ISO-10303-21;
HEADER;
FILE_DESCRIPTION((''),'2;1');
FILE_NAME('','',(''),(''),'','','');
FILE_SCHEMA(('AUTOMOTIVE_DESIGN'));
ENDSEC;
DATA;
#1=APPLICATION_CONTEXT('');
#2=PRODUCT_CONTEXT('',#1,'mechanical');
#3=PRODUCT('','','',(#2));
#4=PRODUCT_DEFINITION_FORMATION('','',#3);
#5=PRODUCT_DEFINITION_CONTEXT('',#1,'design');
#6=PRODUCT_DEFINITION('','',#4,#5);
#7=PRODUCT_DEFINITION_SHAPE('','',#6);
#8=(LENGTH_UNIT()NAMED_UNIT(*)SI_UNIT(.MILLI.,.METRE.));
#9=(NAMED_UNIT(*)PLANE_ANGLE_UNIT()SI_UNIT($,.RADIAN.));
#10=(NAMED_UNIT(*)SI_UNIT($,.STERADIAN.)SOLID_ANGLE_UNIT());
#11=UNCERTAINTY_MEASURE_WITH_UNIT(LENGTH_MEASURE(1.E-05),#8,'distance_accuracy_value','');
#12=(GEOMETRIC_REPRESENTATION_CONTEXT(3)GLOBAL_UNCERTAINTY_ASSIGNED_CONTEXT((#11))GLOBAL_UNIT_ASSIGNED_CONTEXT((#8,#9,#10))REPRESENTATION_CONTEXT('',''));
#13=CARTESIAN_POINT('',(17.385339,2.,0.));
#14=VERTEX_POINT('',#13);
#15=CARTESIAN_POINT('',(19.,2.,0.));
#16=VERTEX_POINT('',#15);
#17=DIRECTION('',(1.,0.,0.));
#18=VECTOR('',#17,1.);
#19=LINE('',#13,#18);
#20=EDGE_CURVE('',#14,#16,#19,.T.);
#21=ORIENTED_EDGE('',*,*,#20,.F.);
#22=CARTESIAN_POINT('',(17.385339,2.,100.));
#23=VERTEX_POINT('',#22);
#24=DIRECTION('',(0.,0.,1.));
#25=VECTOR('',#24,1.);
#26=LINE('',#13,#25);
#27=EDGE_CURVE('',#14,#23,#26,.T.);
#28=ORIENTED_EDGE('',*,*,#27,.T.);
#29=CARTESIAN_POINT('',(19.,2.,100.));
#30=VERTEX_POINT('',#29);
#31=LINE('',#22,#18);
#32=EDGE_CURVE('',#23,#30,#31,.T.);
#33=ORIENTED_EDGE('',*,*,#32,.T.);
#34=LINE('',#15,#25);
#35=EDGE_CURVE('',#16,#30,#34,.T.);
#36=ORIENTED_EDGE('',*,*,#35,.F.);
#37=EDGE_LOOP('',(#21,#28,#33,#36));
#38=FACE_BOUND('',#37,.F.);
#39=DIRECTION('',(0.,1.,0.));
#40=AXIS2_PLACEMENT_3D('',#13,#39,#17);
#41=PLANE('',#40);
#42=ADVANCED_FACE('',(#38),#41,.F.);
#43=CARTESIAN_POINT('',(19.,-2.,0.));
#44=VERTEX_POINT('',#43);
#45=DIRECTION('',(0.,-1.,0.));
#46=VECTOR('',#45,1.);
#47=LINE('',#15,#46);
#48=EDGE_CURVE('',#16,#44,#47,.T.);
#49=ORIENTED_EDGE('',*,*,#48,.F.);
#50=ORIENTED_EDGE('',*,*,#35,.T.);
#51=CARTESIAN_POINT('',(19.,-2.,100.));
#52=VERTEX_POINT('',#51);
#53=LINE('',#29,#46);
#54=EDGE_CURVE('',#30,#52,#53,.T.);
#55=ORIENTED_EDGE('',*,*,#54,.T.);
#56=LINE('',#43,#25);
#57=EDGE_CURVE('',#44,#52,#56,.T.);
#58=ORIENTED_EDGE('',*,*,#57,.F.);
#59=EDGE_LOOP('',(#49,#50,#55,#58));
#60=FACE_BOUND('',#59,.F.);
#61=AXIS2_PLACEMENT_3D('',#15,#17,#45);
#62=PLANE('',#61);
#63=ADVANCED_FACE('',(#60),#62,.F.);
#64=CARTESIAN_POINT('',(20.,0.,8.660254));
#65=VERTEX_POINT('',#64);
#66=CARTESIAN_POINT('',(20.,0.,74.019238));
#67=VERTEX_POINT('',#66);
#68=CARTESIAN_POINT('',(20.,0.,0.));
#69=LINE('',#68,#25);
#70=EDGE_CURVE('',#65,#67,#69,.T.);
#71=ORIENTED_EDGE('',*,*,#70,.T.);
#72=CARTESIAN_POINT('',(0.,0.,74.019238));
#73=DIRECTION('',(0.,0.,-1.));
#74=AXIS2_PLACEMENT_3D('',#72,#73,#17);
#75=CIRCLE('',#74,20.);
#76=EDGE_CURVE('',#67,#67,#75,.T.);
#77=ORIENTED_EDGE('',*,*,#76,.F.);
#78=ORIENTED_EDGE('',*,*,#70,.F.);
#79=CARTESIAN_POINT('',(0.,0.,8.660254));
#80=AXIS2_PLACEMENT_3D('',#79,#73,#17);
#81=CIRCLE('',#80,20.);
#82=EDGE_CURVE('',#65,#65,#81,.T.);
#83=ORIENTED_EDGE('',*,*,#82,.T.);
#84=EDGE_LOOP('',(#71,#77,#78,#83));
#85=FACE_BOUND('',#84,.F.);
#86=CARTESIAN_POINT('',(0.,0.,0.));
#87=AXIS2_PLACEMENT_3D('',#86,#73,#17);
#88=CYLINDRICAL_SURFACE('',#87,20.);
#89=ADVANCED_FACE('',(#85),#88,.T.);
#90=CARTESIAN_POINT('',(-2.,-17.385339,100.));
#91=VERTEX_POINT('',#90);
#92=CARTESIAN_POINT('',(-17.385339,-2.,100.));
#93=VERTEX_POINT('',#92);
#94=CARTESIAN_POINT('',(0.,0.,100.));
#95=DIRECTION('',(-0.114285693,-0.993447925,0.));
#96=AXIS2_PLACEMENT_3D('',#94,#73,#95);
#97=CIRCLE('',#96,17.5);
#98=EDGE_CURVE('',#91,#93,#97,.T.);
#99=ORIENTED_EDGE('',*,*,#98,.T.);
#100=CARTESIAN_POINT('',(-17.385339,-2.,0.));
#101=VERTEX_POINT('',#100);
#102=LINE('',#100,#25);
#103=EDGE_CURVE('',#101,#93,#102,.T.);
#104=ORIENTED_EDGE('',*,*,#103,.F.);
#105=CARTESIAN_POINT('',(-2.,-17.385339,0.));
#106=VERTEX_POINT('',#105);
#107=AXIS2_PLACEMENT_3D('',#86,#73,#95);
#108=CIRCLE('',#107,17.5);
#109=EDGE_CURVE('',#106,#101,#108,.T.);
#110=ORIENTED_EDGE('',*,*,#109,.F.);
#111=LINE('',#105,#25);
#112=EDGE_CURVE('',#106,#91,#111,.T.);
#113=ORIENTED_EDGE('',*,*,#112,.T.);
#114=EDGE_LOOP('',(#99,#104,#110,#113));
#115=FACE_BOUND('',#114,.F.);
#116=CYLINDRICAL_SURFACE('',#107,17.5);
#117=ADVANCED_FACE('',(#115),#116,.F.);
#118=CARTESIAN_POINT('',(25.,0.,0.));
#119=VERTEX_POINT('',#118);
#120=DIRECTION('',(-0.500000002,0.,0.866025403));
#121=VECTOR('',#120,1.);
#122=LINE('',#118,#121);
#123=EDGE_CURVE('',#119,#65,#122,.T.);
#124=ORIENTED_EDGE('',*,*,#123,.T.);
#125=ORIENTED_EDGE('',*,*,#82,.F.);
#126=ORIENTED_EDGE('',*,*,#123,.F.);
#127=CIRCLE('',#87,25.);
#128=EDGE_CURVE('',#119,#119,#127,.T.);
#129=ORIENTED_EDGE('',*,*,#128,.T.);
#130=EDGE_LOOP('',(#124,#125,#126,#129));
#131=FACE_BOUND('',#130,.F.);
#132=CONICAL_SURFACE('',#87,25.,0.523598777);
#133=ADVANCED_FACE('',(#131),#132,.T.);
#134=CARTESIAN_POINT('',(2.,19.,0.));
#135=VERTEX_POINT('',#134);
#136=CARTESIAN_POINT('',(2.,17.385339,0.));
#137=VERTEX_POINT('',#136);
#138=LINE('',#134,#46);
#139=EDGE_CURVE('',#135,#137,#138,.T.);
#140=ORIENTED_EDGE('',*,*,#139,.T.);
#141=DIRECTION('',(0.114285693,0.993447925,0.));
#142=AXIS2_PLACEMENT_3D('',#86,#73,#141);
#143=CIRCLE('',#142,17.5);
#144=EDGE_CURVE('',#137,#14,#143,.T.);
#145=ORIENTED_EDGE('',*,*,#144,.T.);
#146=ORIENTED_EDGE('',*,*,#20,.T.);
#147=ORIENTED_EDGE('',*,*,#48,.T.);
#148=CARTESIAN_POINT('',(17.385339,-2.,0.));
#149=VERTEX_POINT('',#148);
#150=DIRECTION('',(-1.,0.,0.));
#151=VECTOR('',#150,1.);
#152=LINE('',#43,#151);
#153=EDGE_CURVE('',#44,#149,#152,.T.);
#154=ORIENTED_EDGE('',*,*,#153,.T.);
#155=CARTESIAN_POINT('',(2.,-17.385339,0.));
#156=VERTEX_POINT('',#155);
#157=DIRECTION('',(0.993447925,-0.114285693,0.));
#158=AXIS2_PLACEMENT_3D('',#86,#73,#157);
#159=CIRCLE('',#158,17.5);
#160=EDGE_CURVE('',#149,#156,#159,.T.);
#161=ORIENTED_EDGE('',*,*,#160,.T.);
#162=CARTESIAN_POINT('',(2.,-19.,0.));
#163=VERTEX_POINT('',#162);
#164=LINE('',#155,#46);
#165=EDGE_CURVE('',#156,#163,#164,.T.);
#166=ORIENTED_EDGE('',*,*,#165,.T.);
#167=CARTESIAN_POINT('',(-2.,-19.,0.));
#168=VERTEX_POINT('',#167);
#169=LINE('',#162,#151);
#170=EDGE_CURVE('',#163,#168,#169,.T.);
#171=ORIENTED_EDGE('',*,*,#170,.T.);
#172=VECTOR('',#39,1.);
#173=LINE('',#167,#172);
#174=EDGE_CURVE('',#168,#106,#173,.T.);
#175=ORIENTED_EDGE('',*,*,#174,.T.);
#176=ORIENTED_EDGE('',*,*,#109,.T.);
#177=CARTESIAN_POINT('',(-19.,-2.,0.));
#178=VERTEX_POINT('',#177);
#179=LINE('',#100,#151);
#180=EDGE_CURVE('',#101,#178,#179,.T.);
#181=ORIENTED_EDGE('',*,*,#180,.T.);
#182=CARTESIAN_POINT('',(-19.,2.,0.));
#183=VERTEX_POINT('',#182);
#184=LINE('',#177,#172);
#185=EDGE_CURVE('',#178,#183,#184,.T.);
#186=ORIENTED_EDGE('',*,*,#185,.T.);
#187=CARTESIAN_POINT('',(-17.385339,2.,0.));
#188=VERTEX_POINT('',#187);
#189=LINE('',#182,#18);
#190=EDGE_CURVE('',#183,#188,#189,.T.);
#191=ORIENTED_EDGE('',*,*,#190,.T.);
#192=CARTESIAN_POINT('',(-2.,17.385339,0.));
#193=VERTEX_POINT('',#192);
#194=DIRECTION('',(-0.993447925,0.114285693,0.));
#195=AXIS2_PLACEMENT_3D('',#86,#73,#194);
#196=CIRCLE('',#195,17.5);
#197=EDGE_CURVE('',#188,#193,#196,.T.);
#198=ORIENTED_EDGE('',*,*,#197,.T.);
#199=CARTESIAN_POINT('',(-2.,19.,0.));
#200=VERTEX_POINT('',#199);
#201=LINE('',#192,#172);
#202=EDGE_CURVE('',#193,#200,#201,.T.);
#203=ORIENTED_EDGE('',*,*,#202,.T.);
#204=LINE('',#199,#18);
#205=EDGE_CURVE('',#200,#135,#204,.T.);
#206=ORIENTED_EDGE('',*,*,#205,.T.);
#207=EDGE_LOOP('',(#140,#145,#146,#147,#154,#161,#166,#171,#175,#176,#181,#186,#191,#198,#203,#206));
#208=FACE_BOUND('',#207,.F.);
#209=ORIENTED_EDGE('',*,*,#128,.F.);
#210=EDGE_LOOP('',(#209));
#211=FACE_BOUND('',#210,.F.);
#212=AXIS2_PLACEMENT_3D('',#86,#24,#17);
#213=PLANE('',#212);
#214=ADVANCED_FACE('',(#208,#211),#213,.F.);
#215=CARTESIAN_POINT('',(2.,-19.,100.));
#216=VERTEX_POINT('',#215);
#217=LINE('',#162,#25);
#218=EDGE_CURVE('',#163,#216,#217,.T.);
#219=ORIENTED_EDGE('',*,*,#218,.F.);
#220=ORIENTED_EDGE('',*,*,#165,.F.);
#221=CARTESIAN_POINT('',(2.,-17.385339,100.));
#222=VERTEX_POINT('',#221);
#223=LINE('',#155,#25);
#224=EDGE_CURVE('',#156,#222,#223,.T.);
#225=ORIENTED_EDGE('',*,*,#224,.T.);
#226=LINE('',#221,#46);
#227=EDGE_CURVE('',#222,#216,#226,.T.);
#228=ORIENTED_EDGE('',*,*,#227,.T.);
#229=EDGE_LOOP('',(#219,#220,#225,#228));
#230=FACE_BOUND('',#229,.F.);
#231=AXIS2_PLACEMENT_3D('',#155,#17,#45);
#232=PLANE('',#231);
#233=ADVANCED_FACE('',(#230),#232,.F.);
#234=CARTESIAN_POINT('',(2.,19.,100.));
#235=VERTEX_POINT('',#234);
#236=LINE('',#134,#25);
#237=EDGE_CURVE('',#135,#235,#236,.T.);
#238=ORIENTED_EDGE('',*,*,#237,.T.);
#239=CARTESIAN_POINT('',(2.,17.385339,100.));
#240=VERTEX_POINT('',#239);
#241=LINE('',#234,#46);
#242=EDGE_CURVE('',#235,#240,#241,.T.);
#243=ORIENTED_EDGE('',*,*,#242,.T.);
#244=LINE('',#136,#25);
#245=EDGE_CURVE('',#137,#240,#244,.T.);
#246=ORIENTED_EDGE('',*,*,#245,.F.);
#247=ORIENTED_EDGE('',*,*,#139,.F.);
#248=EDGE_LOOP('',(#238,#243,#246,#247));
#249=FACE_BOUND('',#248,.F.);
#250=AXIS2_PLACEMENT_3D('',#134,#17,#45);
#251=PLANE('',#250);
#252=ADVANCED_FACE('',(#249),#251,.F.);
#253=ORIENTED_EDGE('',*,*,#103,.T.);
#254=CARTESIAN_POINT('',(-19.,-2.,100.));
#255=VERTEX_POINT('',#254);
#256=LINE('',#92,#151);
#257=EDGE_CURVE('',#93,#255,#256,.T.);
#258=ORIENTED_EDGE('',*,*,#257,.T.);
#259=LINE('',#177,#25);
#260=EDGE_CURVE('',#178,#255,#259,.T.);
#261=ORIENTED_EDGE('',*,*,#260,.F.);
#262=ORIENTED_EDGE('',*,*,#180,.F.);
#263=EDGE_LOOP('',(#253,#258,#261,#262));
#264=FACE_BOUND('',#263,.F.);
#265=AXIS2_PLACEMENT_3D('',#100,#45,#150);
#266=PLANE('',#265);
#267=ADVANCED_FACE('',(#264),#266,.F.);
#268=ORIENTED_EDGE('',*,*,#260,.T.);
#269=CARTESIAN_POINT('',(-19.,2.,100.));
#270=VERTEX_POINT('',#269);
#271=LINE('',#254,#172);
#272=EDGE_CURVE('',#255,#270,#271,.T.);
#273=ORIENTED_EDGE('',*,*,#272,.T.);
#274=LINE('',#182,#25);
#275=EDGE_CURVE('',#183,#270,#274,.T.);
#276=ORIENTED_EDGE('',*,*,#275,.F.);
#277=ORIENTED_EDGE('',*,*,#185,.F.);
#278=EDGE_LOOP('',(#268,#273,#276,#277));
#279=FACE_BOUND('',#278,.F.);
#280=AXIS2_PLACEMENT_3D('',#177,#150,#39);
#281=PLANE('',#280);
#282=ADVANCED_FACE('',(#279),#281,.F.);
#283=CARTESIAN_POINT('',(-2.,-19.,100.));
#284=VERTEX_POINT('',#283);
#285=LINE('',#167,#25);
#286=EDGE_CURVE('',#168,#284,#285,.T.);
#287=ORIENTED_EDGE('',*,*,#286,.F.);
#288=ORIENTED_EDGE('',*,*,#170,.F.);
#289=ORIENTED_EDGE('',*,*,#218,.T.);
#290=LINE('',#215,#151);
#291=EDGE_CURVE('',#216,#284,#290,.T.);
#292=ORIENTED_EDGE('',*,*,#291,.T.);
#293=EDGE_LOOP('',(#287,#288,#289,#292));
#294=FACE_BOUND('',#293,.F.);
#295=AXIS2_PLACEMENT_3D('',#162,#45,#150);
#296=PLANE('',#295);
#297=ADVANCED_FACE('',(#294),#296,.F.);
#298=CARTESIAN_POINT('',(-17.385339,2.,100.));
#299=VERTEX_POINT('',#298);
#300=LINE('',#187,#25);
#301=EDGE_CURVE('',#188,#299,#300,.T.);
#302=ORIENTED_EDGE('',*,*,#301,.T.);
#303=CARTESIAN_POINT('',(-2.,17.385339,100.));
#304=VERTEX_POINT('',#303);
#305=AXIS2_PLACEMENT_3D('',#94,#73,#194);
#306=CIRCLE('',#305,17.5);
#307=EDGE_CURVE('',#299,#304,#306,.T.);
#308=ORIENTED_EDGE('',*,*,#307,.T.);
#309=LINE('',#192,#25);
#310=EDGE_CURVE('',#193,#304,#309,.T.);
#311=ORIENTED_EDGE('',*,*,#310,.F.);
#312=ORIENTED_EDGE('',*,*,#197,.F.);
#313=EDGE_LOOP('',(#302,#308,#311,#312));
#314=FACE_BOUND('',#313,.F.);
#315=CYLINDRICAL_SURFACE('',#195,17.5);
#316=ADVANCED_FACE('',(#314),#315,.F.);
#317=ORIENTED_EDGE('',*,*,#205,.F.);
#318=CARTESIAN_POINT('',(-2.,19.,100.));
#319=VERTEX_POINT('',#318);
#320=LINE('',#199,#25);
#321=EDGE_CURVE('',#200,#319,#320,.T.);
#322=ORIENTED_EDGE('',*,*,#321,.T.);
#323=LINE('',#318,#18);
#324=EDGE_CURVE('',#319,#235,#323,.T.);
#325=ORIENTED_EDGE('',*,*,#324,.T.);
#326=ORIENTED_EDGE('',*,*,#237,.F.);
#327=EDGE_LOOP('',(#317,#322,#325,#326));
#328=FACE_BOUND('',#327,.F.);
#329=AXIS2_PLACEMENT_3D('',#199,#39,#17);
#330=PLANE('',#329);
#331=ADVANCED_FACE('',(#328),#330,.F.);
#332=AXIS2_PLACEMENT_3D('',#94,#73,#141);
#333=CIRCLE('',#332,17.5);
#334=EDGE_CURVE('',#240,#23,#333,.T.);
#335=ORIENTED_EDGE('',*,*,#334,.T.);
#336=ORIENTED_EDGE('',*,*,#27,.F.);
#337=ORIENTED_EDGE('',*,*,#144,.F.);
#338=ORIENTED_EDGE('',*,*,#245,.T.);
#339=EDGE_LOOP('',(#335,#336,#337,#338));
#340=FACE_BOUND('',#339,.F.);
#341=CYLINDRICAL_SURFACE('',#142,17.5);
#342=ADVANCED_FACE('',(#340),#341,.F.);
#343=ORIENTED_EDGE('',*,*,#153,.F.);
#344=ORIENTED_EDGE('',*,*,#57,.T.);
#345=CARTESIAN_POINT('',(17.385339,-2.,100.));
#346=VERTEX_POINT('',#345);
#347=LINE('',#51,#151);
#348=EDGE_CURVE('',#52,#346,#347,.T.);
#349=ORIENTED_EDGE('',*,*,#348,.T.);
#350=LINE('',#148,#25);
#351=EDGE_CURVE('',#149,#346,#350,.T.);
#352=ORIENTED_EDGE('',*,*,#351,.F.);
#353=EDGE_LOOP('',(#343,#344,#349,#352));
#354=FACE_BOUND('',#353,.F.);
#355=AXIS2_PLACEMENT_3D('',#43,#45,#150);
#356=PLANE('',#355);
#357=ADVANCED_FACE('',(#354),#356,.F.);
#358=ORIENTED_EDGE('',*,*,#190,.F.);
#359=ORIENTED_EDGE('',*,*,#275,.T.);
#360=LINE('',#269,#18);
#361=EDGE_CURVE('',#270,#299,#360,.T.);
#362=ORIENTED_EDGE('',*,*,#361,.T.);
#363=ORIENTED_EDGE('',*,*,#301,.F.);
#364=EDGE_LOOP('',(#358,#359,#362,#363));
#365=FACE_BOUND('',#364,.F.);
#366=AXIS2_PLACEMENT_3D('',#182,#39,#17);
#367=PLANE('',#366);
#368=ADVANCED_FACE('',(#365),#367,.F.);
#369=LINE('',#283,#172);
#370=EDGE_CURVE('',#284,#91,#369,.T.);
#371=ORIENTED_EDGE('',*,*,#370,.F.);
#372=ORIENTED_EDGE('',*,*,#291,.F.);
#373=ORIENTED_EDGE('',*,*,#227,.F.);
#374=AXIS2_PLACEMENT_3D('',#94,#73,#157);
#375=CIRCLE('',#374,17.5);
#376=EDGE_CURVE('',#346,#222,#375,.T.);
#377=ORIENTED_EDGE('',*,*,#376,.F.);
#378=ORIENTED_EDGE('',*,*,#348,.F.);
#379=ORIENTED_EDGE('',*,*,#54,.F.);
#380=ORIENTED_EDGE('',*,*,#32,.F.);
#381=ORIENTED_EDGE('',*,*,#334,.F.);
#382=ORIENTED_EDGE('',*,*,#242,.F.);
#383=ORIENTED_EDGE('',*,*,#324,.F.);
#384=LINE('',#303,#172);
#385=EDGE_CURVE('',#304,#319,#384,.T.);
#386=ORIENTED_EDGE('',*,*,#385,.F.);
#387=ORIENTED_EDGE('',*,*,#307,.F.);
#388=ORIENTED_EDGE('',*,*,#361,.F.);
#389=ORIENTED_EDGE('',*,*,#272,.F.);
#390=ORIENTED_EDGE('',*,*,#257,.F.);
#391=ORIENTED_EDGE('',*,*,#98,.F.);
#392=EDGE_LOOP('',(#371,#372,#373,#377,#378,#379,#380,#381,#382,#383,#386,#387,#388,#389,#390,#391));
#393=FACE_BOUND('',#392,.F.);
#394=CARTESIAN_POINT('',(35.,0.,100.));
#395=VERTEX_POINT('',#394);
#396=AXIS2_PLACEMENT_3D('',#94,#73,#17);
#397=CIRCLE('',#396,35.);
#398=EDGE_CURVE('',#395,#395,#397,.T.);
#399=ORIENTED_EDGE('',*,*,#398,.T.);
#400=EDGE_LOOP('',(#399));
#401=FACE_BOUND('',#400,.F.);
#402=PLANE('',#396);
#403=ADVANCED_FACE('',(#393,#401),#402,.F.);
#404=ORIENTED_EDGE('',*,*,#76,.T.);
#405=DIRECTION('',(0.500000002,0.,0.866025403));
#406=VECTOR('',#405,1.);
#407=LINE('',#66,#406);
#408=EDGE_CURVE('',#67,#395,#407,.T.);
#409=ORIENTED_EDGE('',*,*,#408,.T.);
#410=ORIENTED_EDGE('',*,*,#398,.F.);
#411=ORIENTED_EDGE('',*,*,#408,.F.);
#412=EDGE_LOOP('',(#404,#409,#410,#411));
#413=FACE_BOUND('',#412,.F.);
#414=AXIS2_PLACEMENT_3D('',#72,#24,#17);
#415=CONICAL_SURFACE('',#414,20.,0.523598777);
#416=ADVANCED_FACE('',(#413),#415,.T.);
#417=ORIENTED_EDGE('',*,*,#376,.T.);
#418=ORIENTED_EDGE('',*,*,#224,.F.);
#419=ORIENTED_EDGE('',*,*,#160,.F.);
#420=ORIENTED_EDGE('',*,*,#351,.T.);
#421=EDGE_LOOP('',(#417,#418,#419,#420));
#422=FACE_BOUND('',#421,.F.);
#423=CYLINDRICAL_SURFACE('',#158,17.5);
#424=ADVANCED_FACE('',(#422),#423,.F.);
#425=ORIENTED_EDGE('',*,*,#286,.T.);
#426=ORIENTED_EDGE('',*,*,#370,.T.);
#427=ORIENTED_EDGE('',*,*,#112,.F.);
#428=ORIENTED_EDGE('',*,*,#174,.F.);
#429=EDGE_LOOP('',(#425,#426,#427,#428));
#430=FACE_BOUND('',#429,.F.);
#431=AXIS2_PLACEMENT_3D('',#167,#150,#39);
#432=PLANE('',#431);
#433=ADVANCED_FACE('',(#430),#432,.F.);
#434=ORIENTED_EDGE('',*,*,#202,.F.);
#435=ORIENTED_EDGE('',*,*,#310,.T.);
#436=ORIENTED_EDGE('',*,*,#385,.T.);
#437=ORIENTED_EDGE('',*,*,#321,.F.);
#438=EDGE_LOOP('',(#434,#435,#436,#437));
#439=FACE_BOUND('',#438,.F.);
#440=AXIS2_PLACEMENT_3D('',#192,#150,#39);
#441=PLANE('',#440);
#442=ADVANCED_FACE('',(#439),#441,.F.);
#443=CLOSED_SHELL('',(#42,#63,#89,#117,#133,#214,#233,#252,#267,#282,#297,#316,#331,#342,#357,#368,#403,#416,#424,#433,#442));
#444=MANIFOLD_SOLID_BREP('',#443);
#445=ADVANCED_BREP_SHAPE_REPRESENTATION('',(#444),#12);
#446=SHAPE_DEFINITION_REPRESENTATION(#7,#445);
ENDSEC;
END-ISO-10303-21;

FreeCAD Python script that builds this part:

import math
import FreeCAD as App
import Part
import Sketcher
Q = App.Units.Quantity


def add_polygon(sketch, points):
    """Adds a closed chain of lines whose ends are joined by coincident constraints."""
    first, n = sketch.GeometryCount, len(points)
    for a, b in zip(points, points[1:] + points[:1]):
        sketch.addGeometry(Part.LineSegment(App.Vector(*a, 0), App.Vector(*b, 0)), False)
    for i in range(n):
        sketch.addConstraint(Sketcher.Constraint("Coincident", first + i, 2, first + (i + 1) % n, 1))

doc = App.newDocument("Part")
body = doc.addObject("PartDesign::Body", "Body")

# Sketch on XY plane
sketch1 = body.newObject("Sketcher::SketchObject", "Sketch")
sketch1.AttachmentSupport = (doc.getObject("XY_Plane"), [""])
sketch1.MapMode = "FlatFace"
sketch1.addGeometry([
    Part.Circle(App.Vector(0, 0, 0), App.Vector(0, 0, 1), 20),  # 0
    Part.LineSegment(App.Vector(2, 19, 0), App.Vector(2, 17.385339, 0)),  # 1
    Part.ArcOfCircle(Part.Circle(App.Vector(0, 0, 0), App.Vector(0, 0, 1), 17.5), math.radians(6.562427), math.radians(83.437573)),  # 2
    Part.LineSegment(App.Vector(17.385339, 2, 0), App.Vector(19, 2, 0)),  # 3
    Part.LineSegment(App.Vector(19, 2, 0), App.Vector(19, -2, 0)),  # 4
    Part.LineSegment(App.Vector(19, -2, 0), App.Vector(17.385339, -2, 0)),  # 5
    Part.ArcOfCircle(Part.Circle(App.Vector(0, 0, 0), App.Vector(0, 0, 1), 17.5), math.radians(-83.437573), math.radians(-6.562427)),  # 6
    Part.LineSegment(App.Vector(2, -17.385339, 0), App.Vector(2, -19, 0)),  # 7
    Part.LineSegment(App.Vector(2, -19, 0), App.Vector(-2, -19, 0)),  # 8
    Part.LineSegment(App.Vector(-2, -19, 0), App.Vector(-2, -17.385339, 0)),  # 9
    Part.ArcOfCircle(Part.Circle(App.Vector(0, 0, 0), App.Vector(0, 0, 1), 17.5), math.radians(-173.437573), math.radians(-96.562427)),  # 10
    Part.LineSegment(App.Vector(-17.385339, -2, 0), App.Vector(-19, -2, 0)),  # 11
    Part.LineSegment(App.Vector(-19, -2, 0), App.Vector(-19, 2, 0)),  # 12
    Part.LineSegment(App.Vector(-19, 2, 0), App.Vector(-17.385339, 2, 0)),  # 13
    Part.ArcOfCircle(Part.Circle(App.Vector(0, 0, 0), App.Vector(0, 0, 1), 17.5), math.radians(96.562427), math.radians(173.437573)),  # 14
    Part.LineSegment(App.Vector(-2, 17.385339, 0), App.Vector(-2, 19, 0)),  # 15
    Part.LineSegment(App.Vector(-2, 19, 0), App.Vector(2, 19, 0)),  # 16
], False)
sketch1.addConstraint([
    Sketcher.Constraint("Coincident", 1, 2, 2, 2),
    Sketcher.Constraint("Coincident", 2, 1, 3, 1),
    Sketcher.Constraint("Coincident", 3, 2, 4, 1),
    Sketcher.Constraint("Coincident", 4, 2, 5, 1),
    Sketcher.Constraint("Coincident", 5, 2, 6, 2),
    Sketcher.Constraint("Coincident", 6, 1, 7, 1),
    Sketcher.Constraint("Coincident", 7, 2, 8, 1),
    Sketcher.Constraint("Coincident", 8, 2, 9, 1),
    Sketcher.Constraint("Coincident", 9, 2, 10, 2),
    Sketcher.Constraint("Coincident", 10, 1, 11, 1),
    Sketcher.Constraint("Coincident", 11, 2, 12, 1),
    Sketcher.Constraint("Coincident", 12, 2, 13, 1),
    Sketcher.Constraint("Coincident", 13, 2, 14, 2),
    Sketcher.Constraint("Coincident", 14, 1, 15, 1),
    Sketcher.Constraint("Coincident", 15, 2, 16, 1),
    Sketcher.Constraint("Coincident", 16, 2, 1, 1),
    Sketcher.Constraint("Vertical", 1),
    Sketcher.Constraint("Horizontal", 3),
    Sketcher.Constraint("Vertical", 4),
    Sketcher.Constraint("Horizontal", 5),
    Sketcher.Constraint("Vertical", 7),
    Sketcher.Constraint("Horizontal", 8),
    Sketcher.Constraint("Vertical", 9),
    Sketcher.Constraint("Horizontal", 11),
    Sketcher.Constraint("Vertical", 12),
    Sketcher.Constraint("Horizontal", 13),
    Sketcher.Constraint("Vertical", 15),
    Sketcher.Constraint("Horizontal", 16),
    Sketcher.Constraint("Coincident", 0, 3, -1, 1),
    Sketcher.Constraint("Coincident", 2, 3, -1, 1),
    Sketcher.Constraint("Coincident", 6, 3, -1, 1),
    Sketcher.Constraint("Coincident", 10, 3, -1, 1),
    Sketcher.Constraint("Coincident", 14, 3, -1, 1),
    Sketcher.Constraint("Equal", 2, 6),
    Sketcher.Constraint("Equal", 6, 10),
    Sketcher.Constraint("Equal", 10, 14),
    Sketcher.Constraint("Symmetric", 3, 2, 11, 2, -1, 1),
    Sketcher.Constraint("Symmetric", 7, 2, 15, 2, -1, 1),
    Sketcher.Constraint("Horizontal", 6, 1, 9, 2),
    Sketcher.Constraint("Horizontal", 5, 2, 10, 1),
    Sketcher.Constraint("Horizontal", 3, 2, 12, 2),
    Sketcher.Constraint("Horizontal", 1, 2, 14, 1),
    Sketcher.Constraint("Equal", 13, 1),
    Sketcher.Constraint("Equal", 16, 4),
    Sketcher.Constraint("Diameter", 0, 40.0),
    Sketcher.Constraint("Radius", 2, 17.5),
    Sketcher.Constraint("DistanceX", 8, 2, 8, 1, 4.0),
    Sketcher.Constraint("DistanceX", -1, 1, 3, 2, 19.0),
])
pad1 = body.newObject("PartDesign::Pad", "Pad")
pad1.Profile = sketch1
pad1.Length = 100

# Sketch on XZ plane
sketch2 = body.newObject("Sketcher::SketchObject", "Sketch001")
sketch2.AttachmentSupport = (doc.getObject("XZ_Plane"), [""])
sketch2.MapMode = "FlatFace"
add_polygon(sketch2, [(35, 100), (20, 100), (20, 74.019238)])  # lines 0-2
add_polygon(sketch2, [(25, 0), (20, 8.660254), (20, 0)])  # lines 3-5
sketch2.addConstraint([
    Sketcher.Constraint("Horizontal", 0),
    Sketcher.Constraint("Vertical", 1),
    Sketcher.Constraint("Vertical", 4),
    Sketcher.Constraint("Horizontal", 5),
    Sketcher.Constraint("PointOnObject", 4, 2, -1),
    Sketcher.Constraint("Vertical", 1, 2, 3, 2),
    Sketcher.Constraint("DistanceX", 0, 2, 0, 1, 15.0),
    Sketcher.Constraint("DistanceX", 5, 1, 5, 2, 5.0),
    Sketcher.Constraint("Angle", 2, Q("60 deg")),
    Sketcher.Constraint("Angle", 3, Q("120 deg")),
    Sketcher.Constraint("DistanceX", -1, 1, 0, 2, 20.0),
    Sketcher.Constraint("DistanceY", -1, 1, 0, 2, 100.0),
])
revolution = body.newObject("PartDesign::Revolution", "Revolution")
revolution.Profile = sketch2
revolution.ReferenceAxis = (sketch2, ["V_Axis"])
revolution.Angle = 360

doc.recompute()
